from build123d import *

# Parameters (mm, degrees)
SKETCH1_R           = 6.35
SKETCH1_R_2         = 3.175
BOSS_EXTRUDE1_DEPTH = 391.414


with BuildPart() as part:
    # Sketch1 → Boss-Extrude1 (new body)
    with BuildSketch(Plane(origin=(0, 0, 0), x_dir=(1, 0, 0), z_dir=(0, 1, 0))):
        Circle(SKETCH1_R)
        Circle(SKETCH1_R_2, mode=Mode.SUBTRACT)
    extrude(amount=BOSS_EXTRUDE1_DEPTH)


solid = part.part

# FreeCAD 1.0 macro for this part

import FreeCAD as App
import Part
import Sketcher
Q = App.Units.Quantity

doc = App.newDocument("Part")
body = doc.addObject("PartDesign::Body", "Body")

sketch1 = body.newObject("Sketcher::SketchObject", "Sketch")
sketch1.AttachmentSupport = (doc.getObject("XZ_Plane"), [""])
sketch1.MapMode = "FlatFace"
sketch1.addGeometry([
    Part.Circle(App.Vector(0, 0, 0), App.Vector(0, 0, 1), 6.3),
    Part.Circle(App.Vector(0, 0, 0), App.Vector(0, 0, 1), 3.2),
], False)
sketch1.addConstraint([
    Sketcher.Constraint("Coincident", 0, 3, -1, 1),
    Sketcher.Constraint("Coincident", 1, 3, -1, 1),
    Sketcher.Constraint("Diameter", 0, Q("0.5 in")),
    Sketcher.Constraint("Diameter", 1, Q("0.25 in")),
])
pad1 = body.newObject("PartDesign::Pad", "Pad")
pad1.Profile = sketch1
pad1.Length = Q("15.41 in")
pad1.Reversed = True

doc.recompute()
